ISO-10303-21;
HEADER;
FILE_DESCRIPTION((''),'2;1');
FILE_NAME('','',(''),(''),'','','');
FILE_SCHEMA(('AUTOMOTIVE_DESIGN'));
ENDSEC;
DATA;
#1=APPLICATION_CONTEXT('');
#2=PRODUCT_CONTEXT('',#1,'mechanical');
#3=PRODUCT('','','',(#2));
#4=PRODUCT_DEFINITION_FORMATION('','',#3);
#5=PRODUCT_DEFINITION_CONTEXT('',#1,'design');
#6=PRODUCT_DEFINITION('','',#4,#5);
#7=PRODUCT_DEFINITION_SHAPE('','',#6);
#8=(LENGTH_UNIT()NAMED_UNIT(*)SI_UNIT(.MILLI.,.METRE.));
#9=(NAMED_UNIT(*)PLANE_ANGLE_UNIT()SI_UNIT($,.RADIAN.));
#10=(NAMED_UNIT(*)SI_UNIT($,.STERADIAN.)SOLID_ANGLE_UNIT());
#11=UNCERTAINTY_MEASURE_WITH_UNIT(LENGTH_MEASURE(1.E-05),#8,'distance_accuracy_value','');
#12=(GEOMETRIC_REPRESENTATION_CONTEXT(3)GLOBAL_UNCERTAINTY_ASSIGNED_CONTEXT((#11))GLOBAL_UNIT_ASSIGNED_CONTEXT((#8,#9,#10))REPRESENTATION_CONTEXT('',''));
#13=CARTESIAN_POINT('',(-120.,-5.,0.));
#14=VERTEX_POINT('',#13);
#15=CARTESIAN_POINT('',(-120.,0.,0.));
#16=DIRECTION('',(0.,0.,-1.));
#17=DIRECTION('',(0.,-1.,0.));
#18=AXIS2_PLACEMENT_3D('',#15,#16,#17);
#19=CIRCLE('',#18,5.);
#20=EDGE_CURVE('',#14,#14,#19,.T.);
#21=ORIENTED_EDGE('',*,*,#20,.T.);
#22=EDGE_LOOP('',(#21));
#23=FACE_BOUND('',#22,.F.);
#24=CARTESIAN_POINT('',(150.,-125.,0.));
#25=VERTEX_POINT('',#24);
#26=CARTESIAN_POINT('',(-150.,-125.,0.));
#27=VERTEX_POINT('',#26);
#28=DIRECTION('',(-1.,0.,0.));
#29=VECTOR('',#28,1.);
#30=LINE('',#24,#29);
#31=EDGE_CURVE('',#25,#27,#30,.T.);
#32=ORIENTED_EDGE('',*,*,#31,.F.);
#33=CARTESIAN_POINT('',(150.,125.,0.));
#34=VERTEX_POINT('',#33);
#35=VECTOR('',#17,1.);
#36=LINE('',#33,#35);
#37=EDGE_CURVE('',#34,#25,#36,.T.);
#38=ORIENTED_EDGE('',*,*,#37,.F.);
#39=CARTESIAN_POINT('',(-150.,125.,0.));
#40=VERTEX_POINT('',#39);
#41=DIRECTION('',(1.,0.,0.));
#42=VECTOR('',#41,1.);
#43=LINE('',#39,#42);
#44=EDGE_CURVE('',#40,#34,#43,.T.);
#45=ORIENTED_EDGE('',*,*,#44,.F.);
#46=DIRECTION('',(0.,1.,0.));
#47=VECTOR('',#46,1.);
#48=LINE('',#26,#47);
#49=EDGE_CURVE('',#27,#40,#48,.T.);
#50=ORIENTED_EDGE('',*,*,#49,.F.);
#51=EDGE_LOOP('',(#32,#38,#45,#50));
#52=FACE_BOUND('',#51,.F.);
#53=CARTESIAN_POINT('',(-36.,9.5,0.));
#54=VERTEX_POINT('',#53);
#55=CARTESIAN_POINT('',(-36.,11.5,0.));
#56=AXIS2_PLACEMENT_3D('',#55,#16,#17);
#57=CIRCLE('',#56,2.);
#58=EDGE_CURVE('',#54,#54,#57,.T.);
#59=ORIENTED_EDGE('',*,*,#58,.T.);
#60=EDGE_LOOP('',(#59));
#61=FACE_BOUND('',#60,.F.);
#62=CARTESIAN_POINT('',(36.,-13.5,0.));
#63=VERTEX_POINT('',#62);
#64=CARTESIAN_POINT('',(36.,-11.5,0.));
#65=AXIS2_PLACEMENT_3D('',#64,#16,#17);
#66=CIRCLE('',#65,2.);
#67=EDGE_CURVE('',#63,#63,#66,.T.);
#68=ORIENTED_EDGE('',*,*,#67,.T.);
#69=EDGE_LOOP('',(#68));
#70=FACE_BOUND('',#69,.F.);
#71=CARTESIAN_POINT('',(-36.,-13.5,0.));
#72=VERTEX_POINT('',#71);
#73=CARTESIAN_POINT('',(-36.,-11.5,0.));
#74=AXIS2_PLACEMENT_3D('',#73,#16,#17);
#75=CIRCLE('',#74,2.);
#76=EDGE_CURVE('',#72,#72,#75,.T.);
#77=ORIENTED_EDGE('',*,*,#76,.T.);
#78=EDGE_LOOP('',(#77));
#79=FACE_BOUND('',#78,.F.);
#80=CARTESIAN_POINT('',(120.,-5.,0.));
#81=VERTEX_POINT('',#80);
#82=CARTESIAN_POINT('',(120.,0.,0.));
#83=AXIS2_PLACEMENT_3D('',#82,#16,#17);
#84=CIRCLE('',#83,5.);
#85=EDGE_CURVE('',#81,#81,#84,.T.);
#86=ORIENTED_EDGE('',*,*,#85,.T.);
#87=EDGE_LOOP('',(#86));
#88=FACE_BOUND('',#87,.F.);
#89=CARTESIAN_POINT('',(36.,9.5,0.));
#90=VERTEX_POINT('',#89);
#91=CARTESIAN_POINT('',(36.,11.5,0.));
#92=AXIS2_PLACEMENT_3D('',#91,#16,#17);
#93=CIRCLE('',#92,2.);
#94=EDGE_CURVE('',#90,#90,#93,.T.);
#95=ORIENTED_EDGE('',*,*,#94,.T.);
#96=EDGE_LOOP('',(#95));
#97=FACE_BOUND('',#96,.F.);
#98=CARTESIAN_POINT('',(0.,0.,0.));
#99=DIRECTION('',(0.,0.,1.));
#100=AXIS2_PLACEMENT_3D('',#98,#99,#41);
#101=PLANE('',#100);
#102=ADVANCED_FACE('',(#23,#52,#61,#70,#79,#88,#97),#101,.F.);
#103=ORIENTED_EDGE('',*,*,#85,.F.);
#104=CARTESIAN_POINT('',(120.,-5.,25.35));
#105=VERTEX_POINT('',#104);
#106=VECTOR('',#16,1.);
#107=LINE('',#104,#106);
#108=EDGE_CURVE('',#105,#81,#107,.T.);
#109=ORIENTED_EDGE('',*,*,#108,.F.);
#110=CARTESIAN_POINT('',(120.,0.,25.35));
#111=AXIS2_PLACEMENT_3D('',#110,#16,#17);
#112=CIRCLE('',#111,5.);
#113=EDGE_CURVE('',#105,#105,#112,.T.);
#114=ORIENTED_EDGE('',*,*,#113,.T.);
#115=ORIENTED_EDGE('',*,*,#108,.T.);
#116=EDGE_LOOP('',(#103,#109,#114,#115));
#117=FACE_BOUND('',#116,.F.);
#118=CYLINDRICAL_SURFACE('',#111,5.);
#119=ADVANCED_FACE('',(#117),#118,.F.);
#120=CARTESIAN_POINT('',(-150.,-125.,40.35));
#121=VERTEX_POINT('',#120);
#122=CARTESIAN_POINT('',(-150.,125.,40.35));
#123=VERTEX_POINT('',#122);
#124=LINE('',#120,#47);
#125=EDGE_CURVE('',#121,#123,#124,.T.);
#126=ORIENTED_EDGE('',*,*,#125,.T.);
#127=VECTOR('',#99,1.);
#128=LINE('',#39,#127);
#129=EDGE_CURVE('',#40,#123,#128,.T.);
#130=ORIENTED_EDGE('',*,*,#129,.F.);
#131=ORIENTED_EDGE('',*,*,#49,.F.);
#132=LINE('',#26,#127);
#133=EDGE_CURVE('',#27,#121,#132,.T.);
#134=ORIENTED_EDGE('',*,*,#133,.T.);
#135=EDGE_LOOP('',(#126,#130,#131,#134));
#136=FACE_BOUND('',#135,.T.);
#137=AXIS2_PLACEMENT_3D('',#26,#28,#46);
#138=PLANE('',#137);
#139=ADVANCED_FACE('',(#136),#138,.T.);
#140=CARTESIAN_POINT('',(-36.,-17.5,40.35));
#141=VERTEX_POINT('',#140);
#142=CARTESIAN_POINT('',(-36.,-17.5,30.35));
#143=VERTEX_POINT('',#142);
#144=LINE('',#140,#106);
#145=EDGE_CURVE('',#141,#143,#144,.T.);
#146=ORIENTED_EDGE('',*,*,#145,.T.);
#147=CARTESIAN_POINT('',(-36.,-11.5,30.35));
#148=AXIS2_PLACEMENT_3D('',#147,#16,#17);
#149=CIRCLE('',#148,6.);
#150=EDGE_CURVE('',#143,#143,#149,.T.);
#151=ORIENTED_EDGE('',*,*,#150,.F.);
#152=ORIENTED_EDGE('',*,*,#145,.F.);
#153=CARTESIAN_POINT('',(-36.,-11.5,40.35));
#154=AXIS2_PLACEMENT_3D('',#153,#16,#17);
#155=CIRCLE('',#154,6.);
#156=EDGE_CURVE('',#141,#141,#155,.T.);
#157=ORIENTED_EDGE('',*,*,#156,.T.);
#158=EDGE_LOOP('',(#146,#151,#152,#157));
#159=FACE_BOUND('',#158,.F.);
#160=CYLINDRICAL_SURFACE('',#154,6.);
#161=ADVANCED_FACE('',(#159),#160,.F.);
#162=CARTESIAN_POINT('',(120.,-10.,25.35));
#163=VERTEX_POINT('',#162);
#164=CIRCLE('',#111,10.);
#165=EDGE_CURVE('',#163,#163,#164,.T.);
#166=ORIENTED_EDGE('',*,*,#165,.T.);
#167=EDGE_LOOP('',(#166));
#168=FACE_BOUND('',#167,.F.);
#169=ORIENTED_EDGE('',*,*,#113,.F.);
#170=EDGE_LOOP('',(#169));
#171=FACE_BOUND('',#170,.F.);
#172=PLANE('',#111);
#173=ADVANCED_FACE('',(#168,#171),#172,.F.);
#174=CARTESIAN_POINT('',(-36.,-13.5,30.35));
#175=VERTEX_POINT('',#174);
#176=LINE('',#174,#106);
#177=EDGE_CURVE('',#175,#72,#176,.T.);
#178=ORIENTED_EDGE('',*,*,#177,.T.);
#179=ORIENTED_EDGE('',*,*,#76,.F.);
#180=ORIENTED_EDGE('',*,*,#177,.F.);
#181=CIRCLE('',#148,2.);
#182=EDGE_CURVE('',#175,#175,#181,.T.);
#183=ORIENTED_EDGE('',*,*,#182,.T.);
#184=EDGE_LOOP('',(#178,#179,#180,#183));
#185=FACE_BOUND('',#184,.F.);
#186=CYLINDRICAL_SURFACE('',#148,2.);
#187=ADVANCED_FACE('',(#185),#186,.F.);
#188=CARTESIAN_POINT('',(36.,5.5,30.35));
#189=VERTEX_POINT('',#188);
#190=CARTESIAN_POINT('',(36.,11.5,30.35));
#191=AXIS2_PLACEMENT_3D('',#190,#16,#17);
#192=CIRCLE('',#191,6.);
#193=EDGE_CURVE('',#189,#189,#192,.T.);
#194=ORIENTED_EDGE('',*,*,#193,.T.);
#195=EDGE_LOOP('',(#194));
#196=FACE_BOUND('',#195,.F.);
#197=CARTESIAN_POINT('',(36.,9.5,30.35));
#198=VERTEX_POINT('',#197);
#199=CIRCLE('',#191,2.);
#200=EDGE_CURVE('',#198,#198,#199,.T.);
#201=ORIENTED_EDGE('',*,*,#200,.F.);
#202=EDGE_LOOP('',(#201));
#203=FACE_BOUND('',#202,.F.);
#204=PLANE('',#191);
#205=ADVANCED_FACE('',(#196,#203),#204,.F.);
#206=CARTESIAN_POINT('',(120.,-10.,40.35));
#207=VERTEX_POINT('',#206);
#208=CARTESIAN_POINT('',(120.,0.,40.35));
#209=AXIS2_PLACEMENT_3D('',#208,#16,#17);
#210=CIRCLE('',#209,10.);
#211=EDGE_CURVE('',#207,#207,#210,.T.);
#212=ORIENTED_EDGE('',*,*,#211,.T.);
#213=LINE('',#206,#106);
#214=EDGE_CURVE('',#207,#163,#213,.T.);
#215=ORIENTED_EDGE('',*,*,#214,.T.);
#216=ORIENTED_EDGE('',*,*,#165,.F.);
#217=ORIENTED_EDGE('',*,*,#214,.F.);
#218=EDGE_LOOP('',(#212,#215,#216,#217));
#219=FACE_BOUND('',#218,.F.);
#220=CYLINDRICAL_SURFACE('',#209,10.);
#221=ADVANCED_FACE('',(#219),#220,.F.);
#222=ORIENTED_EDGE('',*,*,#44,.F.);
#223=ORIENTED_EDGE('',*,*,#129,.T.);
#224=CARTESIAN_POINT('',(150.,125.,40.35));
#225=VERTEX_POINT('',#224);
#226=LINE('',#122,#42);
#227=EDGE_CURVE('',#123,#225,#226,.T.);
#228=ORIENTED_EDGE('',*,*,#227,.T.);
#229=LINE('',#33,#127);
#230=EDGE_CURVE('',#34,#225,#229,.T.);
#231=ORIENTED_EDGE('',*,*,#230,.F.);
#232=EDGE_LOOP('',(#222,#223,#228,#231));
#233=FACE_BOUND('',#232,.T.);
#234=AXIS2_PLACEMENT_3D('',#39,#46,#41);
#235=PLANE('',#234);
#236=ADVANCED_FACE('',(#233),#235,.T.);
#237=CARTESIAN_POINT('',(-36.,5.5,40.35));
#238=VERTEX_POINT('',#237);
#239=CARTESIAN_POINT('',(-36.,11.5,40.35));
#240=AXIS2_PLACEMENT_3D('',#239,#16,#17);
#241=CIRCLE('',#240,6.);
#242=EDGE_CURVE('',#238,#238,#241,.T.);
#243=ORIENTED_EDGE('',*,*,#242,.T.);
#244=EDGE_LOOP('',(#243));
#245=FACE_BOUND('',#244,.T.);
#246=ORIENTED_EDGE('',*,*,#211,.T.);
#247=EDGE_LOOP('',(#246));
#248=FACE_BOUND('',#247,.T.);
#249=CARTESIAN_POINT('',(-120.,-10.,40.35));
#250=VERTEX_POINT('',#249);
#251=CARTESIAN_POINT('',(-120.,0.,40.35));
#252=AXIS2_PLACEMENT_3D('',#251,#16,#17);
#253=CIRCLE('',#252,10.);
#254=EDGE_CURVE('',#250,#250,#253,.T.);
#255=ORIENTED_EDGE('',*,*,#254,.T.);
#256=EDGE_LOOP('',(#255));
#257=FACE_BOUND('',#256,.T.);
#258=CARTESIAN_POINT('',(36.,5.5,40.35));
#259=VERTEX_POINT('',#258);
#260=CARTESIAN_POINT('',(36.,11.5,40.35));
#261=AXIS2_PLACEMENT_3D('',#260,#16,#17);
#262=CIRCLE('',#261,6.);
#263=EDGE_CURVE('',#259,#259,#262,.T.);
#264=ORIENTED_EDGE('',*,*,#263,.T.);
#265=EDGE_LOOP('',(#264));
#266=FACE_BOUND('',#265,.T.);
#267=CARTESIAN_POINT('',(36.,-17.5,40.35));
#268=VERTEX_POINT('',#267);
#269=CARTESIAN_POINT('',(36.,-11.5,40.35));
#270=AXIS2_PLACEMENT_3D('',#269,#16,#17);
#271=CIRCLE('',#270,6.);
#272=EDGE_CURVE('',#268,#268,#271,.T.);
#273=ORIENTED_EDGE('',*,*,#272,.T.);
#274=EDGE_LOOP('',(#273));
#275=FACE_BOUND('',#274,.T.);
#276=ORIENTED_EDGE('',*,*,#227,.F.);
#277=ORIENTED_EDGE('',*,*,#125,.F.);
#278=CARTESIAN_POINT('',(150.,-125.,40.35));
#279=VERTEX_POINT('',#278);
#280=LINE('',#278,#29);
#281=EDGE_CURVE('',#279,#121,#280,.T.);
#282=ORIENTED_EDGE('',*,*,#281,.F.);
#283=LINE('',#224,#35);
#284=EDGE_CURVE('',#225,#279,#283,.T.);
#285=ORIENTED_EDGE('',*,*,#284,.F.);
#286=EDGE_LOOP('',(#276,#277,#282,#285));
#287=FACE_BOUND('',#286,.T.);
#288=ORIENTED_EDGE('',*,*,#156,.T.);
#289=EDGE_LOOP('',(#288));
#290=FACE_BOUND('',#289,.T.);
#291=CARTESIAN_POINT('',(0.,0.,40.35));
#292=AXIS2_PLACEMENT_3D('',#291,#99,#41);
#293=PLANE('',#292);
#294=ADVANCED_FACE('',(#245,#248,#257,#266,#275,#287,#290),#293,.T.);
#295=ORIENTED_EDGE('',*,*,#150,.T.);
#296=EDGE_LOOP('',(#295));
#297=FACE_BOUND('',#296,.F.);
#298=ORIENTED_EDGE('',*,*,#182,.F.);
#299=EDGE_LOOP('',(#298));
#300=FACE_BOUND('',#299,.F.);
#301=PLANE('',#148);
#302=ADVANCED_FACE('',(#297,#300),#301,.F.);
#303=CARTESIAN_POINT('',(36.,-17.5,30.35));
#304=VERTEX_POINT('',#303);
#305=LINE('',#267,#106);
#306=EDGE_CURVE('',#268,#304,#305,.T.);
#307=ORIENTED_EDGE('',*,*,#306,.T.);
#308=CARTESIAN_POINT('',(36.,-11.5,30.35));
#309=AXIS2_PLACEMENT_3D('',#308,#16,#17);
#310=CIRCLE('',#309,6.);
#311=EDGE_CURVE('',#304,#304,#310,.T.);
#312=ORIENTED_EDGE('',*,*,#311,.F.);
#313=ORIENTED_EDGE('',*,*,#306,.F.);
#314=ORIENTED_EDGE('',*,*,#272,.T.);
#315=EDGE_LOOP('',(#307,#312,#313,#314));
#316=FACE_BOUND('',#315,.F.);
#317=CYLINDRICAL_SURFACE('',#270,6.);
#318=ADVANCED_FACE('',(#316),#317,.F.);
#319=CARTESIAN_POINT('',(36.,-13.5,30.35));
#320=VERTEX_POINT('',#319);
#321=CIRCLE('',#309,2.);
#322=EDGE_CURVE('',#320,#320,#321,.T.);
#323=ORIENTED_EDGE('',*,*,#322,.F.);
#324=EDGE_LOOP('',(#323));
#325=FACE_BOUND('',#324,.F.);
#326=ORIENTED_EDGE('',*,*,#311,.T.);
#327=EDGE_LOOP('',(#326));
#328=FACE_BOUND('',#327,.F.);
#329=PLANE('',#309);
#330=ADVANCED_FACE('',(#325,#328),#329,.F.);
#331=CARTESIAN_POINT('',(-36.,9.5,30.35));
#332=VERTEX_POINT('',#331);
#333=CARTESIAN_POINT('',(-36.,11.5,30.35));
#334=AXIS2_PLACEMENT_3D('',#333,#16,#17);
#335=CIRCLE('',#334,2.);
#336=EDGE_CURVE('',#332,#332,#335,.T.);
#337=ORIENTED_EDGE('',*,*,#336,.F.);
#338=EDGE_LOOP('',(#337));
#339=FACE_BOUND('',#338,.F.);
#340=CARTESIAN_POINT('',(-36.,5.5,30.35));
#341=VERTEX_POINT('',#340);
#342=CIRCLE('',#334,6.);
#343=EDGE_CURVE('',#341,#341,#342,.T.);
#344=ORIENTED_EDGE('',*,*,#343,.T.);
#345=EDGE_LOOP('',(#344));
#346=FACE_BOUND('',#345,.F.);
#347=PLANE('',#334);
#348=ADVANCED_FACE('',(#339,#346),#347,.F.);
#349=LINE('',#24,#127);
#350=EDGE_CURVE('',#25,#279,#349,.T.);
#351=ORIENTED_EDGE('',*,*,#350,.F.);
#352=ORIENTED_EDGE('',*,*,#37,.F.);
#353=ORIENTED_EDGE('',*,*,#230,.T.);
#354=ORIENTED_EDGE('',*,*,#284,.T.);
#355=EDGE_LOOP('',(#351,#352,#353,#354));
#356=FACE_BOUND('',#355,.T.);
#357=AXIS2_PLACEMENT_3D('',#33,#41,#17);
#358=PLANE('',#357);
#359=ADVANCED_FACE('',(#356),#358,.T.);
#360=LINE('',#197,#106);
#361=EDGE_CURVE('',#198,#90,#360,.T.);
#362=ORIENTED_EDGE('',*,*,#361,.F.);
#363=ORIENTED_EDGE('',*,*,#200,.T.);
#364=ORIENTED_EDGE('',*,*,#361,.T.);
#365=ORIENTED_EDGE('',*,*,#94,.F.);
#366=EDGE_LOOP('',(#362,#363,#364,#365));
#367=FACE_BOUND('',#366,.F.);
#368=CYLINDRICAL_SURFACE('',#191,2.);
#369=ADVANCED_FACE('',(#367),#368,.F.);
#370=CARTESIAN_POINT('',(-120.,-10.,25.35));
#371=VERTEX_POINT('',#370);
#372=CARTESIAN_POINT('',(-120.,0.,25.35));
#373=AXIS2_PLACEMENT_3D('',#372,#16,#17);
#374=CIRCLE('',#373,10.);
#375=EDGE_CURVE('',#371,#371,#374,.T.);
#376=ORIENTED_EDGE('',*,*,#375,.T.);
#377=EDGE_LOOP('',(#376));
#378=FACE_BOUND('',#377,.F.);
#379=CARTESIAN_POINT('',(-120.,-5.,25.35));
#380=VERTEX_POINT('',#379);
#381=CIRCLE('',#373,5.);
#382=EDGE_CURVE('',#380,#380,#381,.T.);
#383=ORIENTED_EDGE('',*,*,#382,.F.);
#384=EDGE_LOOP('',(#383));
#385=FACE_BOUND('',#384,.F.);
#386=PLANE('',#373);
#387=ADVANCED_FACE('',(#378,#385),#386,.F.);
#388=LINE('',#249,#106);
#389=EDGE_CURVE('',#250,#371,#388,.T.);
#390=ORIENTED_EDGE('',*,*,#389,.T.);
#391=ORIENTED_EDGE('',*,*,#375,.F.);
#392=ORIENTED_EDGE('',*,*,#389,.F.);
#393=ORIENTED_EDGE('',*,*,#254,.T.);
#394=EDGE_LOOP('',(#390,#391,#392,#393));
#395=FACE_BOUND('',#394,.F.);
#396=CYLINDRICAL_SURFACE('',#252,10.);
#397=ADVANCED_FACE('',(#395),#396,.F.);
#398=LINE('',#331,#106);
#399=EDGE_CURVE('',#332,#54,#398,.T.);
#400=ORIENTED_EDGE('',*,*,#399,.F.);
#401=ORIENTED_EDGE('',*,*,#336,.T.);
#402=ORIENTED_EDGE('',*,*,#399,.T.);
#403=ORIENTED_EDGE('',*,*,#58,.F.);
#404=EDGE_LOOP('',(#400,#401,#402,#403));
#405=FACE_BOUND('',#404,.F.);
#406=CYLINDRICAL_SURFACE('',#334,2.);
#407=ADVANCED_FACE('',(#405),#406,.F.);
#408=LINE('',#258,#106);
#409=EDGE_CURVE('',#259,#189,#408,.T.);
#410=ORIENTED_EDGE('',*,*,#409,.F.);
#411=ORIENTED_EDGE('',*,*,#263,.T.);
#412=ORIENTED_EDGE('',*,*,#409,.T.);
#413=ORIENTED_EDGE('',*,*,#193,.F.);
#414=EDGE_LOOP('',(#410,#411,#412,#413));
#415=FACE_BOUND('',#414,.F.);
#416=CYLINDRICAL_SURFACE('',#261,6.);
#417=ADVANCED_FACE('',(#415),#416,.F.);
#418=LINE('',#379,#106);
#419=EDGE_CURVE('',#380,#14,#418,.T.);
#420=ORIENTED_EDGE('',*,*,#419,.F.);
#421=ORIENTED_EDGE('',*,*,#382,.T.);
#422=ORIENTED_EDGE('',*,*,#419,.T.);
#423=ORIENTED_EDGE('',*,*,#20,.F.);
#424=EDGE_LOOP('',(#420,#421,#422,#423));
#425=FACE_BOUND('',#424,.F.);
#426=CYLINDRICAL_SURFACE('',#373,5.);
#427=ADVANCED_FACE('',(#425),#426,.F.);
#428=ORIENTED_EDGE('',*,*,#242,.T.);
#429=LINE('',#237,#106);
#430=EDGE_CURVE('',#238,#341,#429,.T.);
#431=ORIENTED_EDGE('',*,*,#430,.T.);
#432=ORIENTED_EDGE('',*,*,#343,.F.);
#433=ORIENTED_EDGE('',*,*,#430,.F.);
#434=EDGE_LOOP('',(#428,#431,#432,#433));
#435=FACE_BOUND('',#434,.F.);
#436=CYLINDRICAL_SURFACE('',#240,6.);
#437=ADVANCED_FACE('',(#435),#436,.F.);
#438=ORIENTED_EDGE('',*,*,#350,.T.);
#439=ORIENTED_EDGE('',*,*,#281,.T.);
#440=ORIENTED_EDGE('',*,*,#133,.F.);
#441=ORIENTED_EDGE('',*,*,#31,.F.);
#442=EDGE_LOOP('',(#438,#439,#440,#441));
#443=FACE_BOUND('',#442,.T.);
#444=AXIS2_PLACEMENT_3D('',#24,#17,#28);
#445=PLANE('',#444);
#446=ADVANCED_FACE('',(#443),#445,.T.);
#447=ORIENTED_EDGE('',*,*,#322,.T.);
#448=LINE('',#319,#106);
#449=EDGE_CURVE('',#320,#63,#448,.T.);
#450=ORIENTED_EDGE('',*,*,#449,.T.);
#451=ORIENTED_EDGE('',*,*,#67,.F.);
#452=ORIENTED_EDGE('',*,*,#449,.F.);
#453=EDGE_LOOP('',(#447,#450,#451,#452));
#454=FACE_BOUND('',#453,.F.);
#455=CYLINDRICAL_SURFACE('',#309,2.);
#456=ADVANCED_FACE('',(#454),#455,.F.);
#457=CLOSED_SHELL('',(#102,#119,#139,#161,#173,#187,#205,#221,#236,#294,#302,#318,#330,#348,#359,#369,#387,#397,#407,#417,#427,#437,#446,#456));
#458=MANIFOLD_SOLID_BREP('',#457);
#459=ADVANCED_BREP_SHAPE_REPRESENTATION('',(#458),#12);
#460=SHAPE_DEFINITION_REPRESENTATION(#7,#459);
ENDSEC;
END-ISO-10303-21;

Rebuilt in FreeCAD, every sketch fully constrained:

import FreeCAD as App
import Part
import Sketcher
Q = App.Units.Quantity

doc = App.newDocument("Part")
body = doc.addObject("PartDesign::Body", "Body")

sketch1 = doc.addObject("Sketcher::SketchObject", "Sketch")
body.addObject(sketch1)
sketch1.AttachmentSupport = (doc.XY_Plane, [""])
sketch1.MapMode = "FlatFace"
sketch1.addGeometry([
    Part.LineSegment(App.Vector(150, 125, 0), App.Vector(-150, 125, 0)),
    Part.LineSegment(App.Vector(-150, 125, 0), App.Vector(-150, -125, 0)),
    Part.LineSegment(App.Vector(-150, -125, 0), App.Vector(150, -125, 0)),
    Part.LineSegment(App.Vector(150, -125, 0), App.Vector(150, 125, 0)),
], False)
sketch1.addConstraint([
    Sketcher.Constraint("Coincident", 0, 2, 1, 1),
    Sketcher.Constraint("Coincident", 1, 2, 2, 1),
    Sketcher.Constraint("Coincident", 2, 2, 3, 1),
    Sketcher.Constraint("Coincident", 3, 2, 0, 1),
    Sketcher.Constraint("Horizontal", 0),
    Sketcher.Constraint("Vertical", 1),
    Sketcher.Constraint("Horizontal", 2),
    Sketcher.Constraint("Vertical", 3),
    Sketcher.Constraint("Symmetric", 0, 2, 2, 2, -1, 1),
    Sketcher.Constraint("DistanceX", 0, 2, 0, 1, Q("300 mm")),
    Sketcher.Constraint("DistanceY", 1, 2, 1, 1, Q("250 mm")),
])
pad1 = doc.addObject("PartDesign::Pad", "Pad")
body.addObject(pad1)
pad1.Profile = sketch1
pad1.Length = 40.35

sketch2 = doc.addObject("Sketcher::SketchObject", "Sketch001")
body.addObject(sketch2)
sketch2.AttachmentSupport = (doc.XY_Plane, [""])
sketch2.MapMode = "FlatFace"
sketch2.AttachmentOffset = App.Placement(App.Vector(0, 0, 40.35), App.Rotation())
sketch2.addGeometry([
    Part.Circle(App.Vector(-120, 0, 0), App.Vector(0, 0, 1), 5),
    Part.Circle(App.Vector(120, 0, 0), App.Vector(0, 0, 1), 5),
], False)
sketch2.addConstraint([
    Sketcher.Constraint("Equal", 0, 1),
    Sketcher.Constraint("Symmetric", 0, 3, 1, 3, -1, 1),
    Sketcher.Constraint("PointOnObject", 0, 3, -1),
    Sketcher.Constraint("Diameter", 0, Q("10 mm")),
    Sketcher.Constraint("DistanceX", 0, 3, -1, 1, Q("120 mm")),
])
doc.recompute()
hole = doc.addObject("PartDesign::Hole", "Hole")
body.addObject(hole)
hole.Profile = sketch2
hole.ThreadType = "None"
hole.Diameter = 10
hole.DepthType = "ThroughAll"
hole.HoleCutType = "Counterbore"
hole.HoleCutDiameter = 20
hole.HoleCutDepth = 15

sketch3 = doc.addObject("Sketcher::SketchObject", "Sketch002")
body.addObject(sketch3)
sketch3.AttachmentSupport = (doc.XY_Plane, [""])
sketch3.MapMode = "FlatFace"
sketch3.AttachmentOffset = App.Placement(App.Vector(0, 0, 40.35), App.Rotation())
sketch3.addGeometry([
    Part.Circle(App.Vector(-36, 11.5, 0), App.Vector(0, 0, 1), 2),
    Part.Circle(App.Vector(36, 11.5, 0), App.Vector(0, 0, 1), 2),
    Part.Circle(App.Vector(36, -11.5, 0), App.Vector(0, 0, 1), 2),
    Part.Circle(App.Vector(-36, -11.5, 0), App.Vector(0, 0, 1), 2),
], False)
sketch3.addConstraint([
    Sketcher.Constraint("Equal", 0, 1),
    Sketcher.Constraint("Equal", 1, 2),
    Sketcher.Constraint("Equal", 2, 3),
    Sketcher.Constraint("Symmetric", 0, 3, 2, 3, -1, 1),
    Sketcher.Constraint("Symmetric", 1, 3, 3, 3, -1, 1),
    Sketcher.Constraint("Symmetric", 0, 3, 1, 3, -2),
    Sketcher.Constraint("Diameter", 0, Q("4 mm")),
    Sketcher.Constraint("DistanceX", 0, 3, -1, 1, Q("36 mm")),
    Sketcher.Constraint("DistanceY", 2, 3, 1, 3, Q("23 mm")),
])
doc.recompute()
hole2 = doc.addObject("PartDesign::Hole", "Hole001")
body.addObject(hole2)
hole2.Profile = sketch3
hole2.ThreadType = "None"
hole2.Diameter = 4
hole2.DepthType = "ThroughAll"
hole2.HoleCutType = "Counterbore"
hole2.HoleCutDiameter = 12
hole2.HoleCutDepth = 10

doc.recompute()
